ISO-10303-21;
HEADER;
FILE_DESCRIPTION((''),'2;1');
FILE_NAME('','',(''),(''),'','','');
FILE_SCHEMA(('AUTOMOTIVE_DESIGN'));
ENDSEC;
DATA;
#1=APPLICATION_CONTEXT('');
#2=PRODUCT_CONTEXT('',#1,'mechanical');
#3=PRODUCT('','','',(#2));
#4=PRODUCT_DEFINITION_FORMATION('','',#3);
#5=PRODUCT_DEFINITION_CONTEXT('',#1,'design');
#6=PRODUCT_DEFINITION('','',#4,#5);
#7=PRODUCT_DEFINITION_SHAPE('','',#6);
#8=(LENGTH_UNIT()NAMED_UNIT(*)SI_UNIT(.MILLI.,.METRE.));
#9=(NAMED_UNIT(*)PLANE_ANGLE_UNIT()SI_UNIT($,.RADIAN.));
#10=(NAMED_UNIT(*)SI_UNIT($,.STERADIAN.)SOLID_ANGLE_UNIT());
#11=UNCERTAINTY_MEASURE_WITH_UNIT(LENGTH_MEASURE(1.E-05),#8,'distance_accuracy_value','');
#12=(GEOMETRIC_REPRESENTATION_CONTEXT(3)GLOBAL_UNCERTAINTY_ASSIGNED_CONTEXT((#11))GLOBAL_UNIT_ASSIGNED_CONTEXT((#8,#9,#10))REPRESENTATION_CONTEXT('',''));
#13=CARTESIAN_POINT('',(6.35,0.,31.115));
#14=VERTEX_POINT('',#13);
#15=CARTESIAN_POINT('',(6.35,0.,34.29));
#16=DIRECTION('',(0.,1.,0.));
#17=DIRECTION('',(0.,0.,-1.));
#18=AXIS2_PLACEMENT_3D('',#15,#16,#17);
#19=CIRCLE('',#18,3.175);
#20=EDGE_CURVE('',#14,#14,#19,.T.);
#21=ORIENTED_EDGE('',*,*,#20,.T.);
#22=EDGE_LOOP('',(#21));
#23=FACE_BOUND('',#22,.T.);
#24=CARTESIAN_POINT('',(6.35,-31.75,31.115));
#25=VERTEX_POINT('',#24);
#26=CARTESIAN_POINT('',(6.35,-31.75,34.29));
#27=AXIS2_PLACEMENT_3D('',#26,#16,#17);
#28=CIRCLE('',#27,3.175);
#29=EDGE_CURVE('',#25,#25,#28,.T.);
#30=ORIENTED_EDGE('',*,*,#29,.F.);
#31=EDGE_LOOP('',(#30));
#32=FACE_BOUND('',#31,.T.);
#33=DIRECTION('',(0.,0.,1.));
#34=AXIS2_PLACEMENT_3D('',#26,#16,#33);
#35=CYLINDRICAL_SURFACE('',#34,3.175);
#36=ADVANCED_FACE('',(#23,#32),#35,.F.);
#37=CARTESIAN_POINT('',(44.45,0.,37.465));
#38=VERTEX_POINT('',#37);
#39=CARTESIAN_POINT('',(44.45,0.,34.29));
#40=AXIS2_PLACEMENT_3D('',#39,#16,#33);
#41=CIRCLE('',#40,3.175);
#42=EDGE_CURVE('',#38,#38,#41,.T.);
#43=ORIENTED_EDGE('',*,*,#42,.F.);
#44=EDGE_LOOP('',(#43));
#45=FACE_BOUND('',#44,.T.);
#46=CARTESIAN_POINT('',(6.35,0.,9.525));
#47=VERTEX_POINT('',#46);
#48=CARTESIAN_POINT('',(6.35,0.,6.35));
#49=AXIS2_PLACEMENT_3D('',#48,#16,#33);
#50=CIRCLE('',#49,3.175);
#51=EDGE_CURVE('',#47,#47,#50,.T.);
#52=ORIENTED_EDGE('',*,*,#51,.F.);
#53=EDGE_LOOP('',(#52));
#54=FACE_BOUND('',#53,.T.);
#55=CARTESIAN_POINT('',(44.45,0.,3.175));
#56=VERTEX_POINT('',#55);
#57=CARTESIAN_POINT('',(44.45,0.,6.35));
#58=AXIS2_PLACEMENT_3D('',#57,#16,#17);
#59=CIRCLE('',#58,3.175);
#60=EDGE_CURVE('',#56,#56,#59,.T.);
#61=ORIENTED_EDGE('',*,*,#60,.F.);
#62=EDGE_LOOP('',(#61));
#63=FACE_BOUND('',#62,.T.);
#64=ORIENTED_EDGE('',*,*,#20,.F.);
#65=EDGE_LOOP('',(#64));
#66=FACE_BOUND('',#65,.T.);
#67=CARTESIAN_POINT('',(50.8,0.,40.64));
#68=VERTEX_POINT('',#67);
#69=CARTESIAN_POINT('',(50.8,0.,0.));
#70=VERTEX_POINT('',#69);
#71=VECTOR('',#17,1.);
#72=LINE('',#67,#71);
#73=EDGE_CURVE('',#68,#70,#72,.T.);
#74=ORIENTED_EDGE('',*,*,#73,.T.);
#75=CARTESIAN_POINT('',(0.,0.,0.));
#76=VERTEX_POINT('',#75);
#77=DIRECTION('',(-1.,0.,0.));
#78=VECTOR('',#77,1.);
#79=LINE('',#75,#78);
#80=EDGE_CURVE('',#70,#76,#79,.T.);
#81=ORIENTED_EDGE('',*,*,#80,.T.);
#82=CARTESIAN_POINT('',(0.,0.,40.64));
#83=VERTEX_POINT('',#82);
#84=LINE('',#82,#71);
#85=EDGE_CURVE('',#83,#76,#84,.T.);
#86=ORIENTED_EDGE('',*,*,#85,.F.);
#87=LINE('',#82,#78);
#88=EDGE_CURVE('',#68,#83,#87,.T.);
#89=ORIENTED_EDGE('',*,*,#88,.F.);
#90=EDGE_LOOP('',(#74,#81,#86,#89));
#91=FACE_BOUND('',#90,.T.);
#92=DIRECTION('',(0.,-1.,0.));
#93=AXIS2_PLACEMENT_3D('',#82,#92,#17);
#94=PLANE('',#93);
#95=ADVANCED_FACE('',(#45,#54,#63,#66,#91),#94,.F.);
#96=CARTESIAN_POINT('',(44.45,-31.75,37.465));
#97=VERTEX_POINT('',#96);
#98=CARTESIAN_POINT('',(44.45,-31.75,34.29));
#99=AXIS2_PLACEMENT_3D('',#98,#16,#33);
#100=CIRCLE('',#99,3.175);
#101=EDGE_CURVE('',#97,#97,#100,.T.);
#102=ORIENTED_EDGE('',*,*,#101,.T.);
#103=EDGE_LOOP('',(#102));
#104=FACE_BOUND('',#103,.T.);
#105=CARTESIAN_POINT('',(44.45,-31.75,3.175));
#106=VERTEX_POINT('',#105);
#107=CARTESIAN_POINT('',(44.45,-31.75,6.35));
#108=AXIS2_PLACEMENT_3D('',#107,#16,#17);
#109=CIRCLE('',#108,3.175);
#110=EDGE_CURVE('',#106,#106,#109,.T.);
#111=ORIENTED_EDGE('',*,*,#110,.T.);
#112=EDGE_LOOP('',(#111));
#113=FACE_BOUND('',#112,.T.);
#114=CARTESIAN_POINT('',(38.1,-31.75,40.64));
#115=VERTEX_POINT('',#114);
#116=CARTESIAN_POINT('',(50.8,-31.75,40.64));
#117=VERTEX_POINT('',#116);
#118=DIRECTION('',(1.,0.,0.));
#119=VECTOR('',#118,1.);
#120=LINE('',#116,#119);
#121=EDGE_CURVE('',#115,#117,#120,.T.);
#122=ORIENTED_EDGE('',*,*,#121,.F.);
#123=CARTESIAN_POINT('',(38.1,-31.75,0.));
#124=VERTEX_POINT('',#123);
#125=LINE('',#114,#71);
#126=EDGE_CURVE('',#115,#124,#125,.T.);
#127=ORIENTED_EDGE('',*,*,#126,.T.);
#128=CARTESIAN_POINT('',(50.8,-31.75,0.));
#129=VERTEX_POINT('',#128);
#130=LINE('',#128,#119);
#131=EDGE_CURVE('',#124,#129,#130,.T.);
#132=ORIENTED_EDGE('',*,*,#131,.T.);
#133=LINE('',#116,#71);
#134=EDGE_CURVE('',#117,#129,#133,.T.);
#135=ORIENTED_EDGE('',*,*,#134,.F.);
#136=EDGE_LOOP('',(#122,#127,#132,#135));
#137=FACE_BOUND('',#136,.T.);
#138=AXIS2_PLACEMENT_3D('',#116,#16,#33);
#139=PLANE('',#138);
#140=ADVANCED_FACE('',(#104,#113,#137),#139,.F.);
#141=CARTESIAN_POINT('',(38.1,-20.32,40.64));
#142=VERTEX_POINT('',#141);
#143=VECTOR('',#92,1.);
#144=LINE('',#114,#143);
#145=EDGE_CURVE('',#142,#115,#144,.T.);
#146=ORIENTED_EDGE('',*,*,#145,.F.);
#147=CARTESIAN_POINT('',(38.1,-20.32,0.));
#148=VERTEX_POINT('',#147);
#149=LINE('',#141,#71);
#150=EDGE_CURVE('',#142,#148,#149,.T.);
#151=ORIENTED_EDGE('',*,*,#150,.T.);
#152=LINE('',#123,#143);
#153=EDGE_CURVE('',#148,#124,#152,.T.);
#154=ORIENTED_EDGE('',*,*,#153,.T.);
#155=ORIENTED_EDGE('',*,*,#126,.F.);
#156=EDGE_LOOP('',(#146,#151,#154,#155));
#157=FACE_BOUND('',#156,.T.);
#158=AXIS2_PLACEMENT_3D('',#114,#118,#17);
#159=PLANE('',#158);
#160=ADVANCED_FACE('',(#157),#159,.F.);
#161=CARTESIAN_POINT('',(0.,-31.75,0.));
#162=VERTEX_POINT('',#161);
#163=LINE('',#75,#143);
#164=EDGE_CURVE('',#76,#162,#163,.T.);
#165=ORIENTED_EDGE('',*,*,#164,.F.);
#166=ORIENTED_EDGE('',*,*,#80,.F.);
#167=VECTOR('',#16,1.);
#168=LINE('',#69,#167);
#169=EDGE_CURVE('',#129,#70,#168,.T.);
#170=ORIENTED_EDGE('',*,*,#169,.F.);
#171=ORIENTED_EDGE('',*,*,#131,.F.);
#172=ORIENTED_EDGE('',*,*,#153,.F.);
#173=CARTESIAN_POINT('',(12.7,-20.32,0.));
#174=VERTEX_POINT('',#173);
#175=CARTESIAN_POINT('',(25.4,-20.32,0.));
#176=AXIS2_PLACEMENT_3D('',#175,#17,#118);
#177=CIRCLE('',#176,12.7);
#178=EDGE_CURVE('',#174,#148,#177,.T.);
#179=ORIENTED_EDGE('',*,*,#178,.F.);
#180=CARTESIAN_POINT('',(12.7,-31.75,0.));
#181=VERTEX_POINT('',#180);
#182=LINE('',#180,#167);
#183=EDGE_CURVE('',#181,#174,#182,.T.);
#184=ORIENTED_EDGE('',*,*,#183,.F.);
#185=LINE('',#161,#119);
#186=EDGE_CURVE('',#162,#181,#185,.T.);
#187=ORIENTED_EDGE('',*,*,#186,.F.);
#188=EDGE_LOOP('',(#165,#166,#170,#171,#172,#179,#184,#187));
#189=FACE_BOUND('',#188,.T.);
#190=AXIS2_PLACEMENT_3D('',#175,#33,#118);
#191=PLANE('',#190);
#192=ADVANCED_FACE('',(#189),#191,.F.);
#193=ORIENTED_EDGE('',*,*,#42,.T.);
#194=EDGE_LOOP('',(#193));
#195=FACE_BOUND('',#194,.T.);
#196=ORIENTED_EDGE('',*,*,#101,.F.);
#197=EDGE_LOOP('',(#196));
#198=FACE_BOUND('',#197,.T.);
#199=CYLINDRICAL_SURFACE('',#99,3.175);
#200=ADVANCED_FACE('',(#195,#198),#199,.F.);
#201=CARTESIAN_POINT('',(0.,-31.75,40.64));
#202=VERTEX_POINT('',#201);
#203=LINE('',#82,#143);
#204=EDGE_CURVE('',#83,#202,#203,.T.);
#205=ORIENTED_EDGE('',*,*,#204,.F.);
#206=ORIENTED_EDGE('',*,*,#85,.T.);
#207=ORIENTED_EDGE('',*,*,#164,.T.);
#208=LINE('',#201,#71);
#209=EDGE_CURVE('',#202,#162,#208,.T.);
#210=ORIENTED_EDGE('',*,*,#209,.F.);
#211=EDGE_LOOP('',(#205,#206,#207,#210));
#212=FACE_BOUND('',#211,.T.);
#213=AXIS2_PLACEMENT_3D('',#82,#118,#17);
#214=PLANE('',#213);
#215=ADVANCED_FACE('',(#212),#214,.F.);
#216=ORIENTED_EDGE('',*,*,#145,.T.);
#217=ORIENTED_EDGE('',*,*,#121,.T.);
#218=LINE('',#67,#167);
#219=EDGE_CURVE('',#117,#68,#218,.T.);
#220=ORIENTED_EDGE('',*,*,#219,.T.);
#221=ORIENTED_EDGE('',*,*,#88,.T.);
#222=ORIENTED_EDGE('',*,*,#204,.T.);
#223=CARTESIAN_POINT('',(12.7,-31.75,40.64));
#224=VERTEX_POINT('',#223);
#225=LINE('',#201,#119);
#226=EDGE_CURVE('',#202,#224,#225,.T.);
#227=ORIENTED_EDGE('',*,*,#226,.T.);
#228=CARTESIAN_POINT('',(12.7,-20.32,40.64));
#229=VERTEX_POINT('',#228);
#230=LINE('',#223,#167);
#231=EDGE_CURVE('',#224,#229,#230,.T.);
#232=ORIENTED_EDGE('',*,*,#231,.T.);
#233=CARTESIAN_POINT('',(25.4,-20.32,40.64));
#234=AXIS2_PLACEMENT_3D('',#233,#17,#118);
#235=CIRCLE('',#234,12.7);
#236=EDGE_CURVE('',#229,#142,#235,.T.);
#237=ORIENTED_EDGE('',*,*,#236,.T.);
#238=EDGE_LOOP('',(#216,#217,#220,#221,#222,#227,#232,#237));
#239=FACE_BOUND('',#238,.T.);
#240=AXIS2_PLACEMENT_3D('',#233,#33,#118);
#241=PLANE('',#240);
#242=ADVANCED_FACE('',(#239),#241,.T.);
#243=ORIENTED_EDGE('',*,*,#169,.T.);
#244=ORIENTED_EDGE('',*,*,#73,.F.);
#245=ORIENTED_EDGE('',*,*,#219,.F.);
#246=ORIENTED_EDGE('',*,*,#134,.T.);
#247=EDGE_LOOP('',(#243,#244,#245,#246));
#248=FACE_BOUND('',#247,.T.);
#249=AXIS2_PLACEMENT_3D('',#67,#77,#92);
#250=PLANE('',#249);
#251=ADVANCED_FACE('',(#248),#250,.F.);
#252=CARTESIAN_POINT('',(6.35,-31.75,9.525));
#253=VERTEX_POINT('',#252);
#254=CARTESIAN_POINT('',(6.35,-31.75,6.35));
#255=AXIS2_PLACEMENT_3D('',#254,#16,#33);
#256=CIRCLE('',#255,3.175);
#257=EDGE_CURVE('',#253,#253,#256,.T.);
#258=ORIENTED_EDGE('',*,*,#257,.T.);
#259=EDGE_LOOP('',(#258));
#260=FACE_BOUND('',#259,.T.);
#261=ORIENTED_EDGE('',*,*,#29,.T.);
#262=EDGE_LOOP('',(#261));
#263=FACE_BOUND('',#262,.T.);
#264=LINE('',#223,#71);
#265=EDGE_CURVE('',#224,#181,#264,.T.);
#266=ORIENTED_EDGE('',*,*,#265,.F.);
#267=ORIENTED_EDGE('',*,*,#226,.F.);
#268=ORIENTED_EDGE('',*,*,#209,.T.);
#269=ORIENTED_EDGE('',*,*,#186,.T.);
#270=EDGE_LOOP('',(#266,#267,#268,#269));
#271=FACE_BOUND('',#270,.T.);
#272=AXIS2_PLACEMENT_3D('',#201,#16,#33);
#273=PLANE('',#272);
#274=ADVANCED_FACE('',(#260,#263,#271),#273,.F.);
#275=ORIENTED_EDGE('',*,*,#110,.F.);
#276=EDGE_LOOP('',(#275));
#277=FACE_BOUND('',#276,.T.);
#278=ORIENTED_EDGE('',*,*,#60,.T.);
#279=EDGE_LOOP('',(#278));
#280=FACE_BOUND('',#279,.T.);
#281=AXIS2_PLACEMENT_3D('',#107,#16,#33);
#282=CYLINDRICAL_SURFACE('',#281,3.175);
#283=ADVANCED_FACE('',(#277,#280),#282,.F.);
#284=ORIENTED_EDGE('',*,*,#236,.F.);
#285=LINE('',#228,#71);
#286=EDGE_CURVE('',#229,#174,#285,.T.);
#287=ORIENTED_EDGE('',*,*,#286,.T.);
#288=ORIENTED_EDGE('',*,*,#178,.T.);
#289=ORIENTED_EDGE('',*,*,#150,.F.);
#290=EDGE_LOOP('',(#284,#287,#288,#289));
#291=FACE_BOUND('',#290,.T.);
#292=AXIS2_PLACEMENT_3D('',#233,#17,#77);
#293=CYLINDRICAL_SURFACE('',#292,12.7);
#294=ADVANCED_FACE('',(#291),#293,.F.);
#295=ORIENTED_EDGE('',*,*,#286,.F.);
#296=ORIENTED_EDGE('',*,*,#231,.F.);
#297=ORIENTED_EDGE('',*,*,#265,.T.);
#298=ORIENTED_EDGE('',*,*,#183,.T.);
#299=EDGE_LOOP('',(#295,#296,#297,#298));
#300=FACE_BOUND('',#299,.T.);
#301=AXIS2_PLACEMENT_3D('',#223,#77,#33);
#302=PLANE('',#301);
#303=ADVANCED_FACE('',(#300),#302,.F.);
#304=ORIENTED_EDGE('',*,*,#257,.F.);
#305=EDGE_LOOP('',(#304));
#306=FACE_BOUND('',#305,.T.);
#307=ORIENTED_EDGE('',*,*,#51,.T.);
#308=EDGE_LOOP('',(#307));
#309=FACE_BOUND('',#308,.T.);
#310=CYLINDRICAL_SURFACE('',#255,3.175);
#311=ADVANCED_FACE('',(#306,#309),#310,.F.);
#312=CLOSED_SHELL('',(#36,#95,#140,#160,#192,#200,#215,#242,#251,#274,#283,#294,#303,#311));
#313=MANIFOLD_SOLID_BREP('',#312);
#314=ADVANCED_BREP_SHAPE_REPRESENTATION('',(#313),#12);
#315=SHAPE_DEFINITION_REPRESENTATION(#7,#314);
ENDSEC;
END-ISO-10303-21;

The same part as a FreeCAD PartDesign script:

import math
import FreeCAD as App
import Part
import Sketcher
Q = App.Units.Quantity

doc = App.newDocument("Part")
body = doc.addObject("PartDesign::Body", "Body")

# Sketch on XY plane
sketch1 = doc.addObject("Sketcher::SketchObject", "Sketch")
body.addObject(sketch1)
sketch1.AttachmentSupport = (doc.XY_Plane, [""])
sketch1.MapMode = "FlatFace"
sketch1.addGeometry([
    Part.LineSegment(App.Vector(51, 0, 0), App.Vector(0, 0, 0)),  # 0
    Part.LineSegment(App.Vector(0, 0, 0), App.Vector(0, -32, 0)),  # 1
    Part.LineSegment(App.Vector(0, -32, 0), App.Vector(13, -32, 0)),  # 2
    Part.LineSegment(App.Vector(13, -32, 0), App.Vector(13, -20, 0)),  # 3
    Part.ArcOfCircle(Part.Circle(App.Vector(25, -20, 0), App.Vector(0, 0, 1), 13), math.radians(0), math.radians(180)),  # 4
    Part.LineSegment(App.Vector(38, -20, 0), App.Vector(38, -32, 0)),  # 5
    Part.LineSegment(App.Vector(38, -32, 0), App.Vector(51, -32, 0)),  # 6
    Part.LineSegment(App.Vector(51, -32, 0), App.Vector(51, 0, 0)),  # 7
], False)
sketch1.addConstraint([
    Sketcher.Constraint("Coincident", 0, 2, 1, 1),
    Sketcher.Constraint("Coincident", 1, 2, 2, 1),
    Sketcher.Constraint("Coincident", 2, 2, 3, 1),
    Sketcher.Constraint("Tangent", 3, 2, 4, 2),
    Sketcher.Constraint("Tangent", 4, 1, 5, 1),
    Sketcher.Constraint("Coincident", 5, 2, 6, 1),
    Sketcher.Constraint("Coincident", 6, 2, 7, 1),
    Sketcher.Constraint("Coincident", 7, 2, 0, 1),
    Sketcher.Constraint("Horizontal", 0),
    Sketcher.Constraint("Vertical", 1),
    Sketcher.Constraint("Horizontal", 2),
    Sketcher.Constraint("Vertical", 3),
    Sketcher.Constraint("Vertical", 5),
    Sketcher.Constraint("Horizontal", 6),
    Sketcher.Constraint("Vertical", 7),
    Sketcher.Constraint("Coincident", 0, 2, -1, 1),
    Sketcher.Constraint("Horizontal", 2, 2, 5, 2),
    Sketcher.Constraint("Equal", 2, 6),
    Sketcher.Constraint("Radius", 4, Q("0.5 in")),
    Sketcher.Constraint("DistanceX", 0, 2, 0, 1, Q("2 in")),
    Sketcher.Constraint("DistanceY", 1, 2, 1, 1, Q("1.25 in")),
    Sketcher.Constraint("DistanceY", 3, 1, 3, 2, Q("0.45 in")),
])
pad1 = doc.addObject("PartDesign::Pad", "Pad")
body.addObject(pad1)
pad1.Profile = sketch1
pad1.Length = Q("1.6 in")

# Sketch on XZ plane
sketch2 = doc.addObject("Sketcher::SketchObject", "Sketch001")
body.addObject(sketch2)
sketch2.AttachmentSupport = (doc.XZ_Plane, [""])
sketch2.MapMode = "FlatFace"
sketch2.addGeometry([
    Part.Circle(App.Vector(6.3, 6.3, 0), App.Vector(0, 0, 1), 3.2),
    Part.Circle(App.Vector(44.5, 6.3, 0), App.Vector(0, 0, 1), 3.2),
    Part.Circle(App.Vector(6.3, 34.3, 0), App.Vector(0, 0, 1), 3.2),
    Part.Circle(App.Vector(44.5, 34.3, 0), App.Vector(0, 0, 1), 3.2),
], False)
sketch2.addConstraint([
    Sketcher.Constraint("Equal", 0, 1),
    Sketcher.Constraint("Equal", 1, 2),
    Sketcher.Constraint("Equal", 2, 3),
    Sketcher.Constraint("Horizontal", 0, 3, 1, 3),
    Sketcher.Constraint("Horizontal", 2, 3, 3, 3),
    Sketcher.Constraint("Vertical", 0, 3, 2, 3),
    Sketcher.Constraint("Vertical", 1, 3, 3, 3),
    Sketcher.Constraint("Diameter", 0, Q("0.25 in")),
    Sketcher.Constraint("DistanceX", 0, 3, 1, 3, Q("1.5 in")),
    Sketcher.Constraint("DistanceY", 0, 3, 2, 3, Q("1.1 in")),
    Sketcher.Constraint("DistanceX", -1, 1, 0, 3, Q("0.25 in")),
    Sketcher.Constraint("DistanceY", -1, 1, 0, 3, Q("0.25 in")),
])
pocket1 = doc.addObject("PartDesign::Pocket", "Pocket")
body.addObject(pocket1)
pocket1.Profile = sketch2
pocket1.Type = "ThroughAll"
pocket1.Reversed = True

doc.recompute()
